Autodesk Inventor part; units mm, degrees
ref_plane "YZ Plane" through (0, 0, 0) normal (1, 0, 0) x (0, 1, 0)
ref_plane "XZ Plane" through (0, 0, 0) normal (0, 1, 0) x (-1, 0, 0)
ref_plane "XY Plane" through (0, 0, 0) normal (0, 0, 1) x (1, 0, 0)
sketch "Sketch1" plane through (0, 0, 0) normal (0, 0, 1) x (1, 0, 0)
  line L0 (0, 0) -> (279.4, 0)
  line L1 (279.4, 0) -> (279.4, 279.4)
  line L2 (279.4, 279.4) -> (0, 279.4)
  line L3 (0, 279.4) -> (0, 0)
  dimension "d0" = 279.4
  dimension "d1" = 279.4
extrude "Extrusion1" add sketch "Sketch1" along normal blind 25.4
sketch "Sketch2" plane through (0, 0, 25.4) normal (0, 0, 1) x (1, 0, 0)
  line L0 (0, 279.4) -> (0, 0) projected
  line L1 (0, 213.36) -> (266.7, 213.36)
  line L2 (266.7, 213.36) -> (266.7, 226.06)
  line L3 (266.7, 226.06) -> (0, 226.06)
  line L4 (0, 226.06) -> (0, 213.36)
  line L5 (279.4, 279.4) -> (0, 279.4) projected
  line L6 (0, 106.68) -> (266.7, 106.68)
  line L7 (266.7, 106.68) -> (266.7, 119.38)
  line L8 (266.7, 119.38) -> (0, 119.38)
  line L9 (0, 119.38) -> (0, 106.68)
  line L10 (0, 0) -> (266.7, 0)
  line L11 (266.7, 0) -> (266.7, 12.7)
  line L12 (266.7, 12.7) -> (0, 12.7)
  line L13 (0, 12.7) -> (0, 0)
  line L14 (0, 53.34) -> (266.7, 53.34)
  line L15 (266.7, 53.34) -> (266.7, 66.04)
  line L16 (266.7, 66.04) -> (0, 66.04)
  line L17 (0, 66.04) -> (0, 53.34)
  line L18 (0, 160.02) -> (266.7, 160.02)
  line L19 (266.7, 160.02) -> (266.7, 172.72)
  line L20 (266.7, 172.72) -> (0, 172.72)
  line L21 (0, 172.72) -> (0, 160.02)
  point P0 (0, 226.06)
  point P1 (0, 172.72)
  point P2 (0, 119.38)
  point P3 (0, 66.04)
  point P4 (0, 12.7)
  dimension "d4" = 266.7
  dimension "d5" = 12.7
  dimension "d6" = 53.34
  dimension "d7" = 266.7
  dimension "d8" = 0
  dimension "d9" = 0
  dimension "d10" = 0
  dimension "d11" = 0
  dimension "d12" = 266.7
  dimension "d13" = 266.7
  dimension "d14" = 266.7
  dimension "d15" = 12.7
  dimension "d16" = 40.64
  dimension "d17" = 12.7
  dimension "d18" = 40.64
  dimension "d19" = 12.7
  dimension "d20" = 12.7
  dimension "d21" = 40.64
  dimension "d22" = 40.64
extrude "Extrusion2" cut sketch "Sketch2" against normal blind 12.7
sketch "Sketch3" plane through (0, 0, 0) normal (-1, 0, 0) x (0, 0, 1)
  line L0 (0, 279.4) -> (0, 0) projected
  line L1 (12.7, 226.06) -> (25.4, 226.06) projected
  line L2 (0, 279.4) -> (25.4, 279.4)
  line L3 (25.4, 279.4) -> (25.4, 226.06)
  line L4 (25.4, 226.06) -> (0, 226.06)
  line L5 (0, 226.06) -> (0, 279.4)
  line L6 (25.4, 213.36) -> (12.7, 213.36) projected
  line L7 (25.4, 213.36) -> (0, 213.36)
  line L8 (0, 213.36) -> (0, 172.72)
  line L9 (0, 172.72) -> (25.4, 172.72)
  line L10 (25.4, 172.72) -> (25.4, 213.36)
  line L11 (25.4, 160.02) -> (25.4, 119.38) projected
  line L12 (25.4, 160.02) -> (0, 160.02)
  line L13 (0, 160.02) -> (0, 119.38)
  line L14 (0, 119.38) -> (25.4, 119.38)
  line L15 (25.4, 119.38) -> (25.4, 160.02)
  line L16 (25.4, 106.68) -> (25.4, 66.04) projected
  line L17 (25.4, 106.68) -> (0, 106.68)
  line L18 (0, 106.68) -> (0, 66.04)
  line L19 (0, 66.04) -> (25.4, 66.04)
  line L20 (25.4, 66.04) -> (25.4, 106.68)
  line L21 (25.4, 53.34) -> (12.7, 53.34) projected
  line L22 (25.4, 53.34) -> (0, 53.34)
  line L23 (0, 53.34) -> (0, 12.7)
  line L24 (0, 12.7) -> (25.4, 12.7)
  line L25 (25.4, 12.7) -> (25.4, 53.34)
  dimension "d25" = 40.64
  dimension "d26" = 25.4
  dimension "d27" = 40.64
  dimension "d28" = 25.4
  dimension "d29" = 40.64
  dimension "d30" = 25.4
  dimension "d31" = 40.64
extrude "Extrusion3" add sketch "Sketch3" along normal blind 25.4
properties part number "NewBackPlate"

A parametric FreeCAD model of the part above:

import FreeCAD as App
import Part
import Sketcher

V = App.Vector
Q = App.Units.Quantity


def add_polygon(sketch, points):
    """Adds a closed chain of lines whose ends are joined by coincident constraints."""
    first, n = sketch.GeometryCount, len(points)
    for a, b in zip(points, points[1:] + points[:1]):
        sketch.addGeometry(Part.LineSegment(App.Vector(*a, 0), App.Vector(*b, 0)), False)
    for i in range(n):
        sketch.addConstraint(Sketcher.Constraint("Coincident", first + i, 2, first + (i + 1) % n, 1))

doc = App.newDocument("Part")
body = doc.addObject("PartDesign::Body", "Body")

sketch1 = doc.addObject("Sketcher::SketchObject", "Sketch")
body.addObject(sketch1)
sketch1.AttachmentSupport = (doc.XY_Plane, [""])
sketch1.MapMode = "FlatFace"
add_polygon(sketch1, [(0, 279), (0, 0), (279, 0), (279, 279)])
sketch1.addConstraint([
    Sketcher.Constraint("Vertical", 0),
    Sketcher.Constraint("Horizontal", 1),
    Sketcher.Constraint("Vertical", 2),
    Sketcher.Constraint("Horizontal", 3),
    Sketcher.Constraint("Coincident", 0, 2, -1, 1),
    Sketcher.Constraint("Equal", 3, 0),
    Sketcher.Constraint("DistanceX", 1, 1, 1, 2, Q("11 in")),
])
pad1 = doc.addObject("PartDesign::Pad", "Pad")
body.addObject(pad1)
pad1.Profile = sketch1
pad1.Length = Q("1 in")

sketch2 = doc.addObject("Sketcher::SketchObject", "Sketch001")
body.addObject(sketch2)
sketch2.AttachmentSupport = (doc.XY_Plane, [""])
sketch2.MapMode = "FlatFace"
sketch2.AttachmentOffset = App.Placement(V(0, 0, 1 * 25.4), App.Rotation())
add_polygon(sketch2, [(267, 226), (0, 226), (0, 213), (267, 213)])
add_polygon(sketch2, [(267, 13), (0, 13), (0, 0), (267, 0)])
add_polygon(sketch2, [(267, 66), (0, 66), (0, 53), (267, 53)])
add_polygon(sketch2, [(267, 119), (0, 119), (0, 107), (267, 107)])
add_polygon(sketch2, [(267, 173), (0, 173), (0, 160), (267, 160)])
sketch2.addConstraint([
    Sketcher.Constraint("Horizontal", 0),
    Sketcher.Constraint("Vertical", 1),
    Sketcher.Constraint("Horizontal", 2),
    Sketcher.Constraint("Vertical", 3),
    Sketcher.Constraint("Horizontal", 4),
    Sketcher.Constraint("Vertical", 5),
    Sketcher.Constraint("Horizontal", 6),
    Sketcher.Constraint("Vertical", 7),
    Sketcher.Constraint("Horizontal", 8),
    Sketcher.Constraint("Vertical", 9),
    Sketcher.Constraint("Horizontal", 10),
    Sketcher.Constraint("Vertical", 11),
    Sketcher.Constraint("Horizontal", 12),
    Sketcher.Constraint("Vertical", 13),
    Sketcher.Constraint("Horizontal", 14),
    Sketcher.Constraint("Vertical", 15),
    Sketcher.Constraint("Horizontal", 16),
    Sketcher.Constraint("Vertical", 17),
    Sketcher.Constraint("Horizontal", 18),
    Sketcher.Constraint("Vertical", 19),
    Sketcher.Constraint("Coincident", 5, 2, -1, 1),
    Sketcher.Constraint("PointOnObject", 0, 2, -2),
    Sketcher.Constraint("PointOnObject", 8, 2, -2),
    Sketcher.Constraint("PointOnObject", 12, 2, -2),
    Sketcher.Constraint("PointOnObject", 16, 2, -2),
    Sketcher.Constraint("Vertical", 3, 2, 6, 2),
    Sketcher.Constraint("Vertical", 7, 2, 10, 2),
    Sketcher.Constraint("Vertical", 11, 2, 14, 2),
    Sketcher.Constraint("Vertical", 15, 2, 18, 2),
    Sketcher.Constraint("Equal", 3, 5),
    Sketcher.Constraint("Equal", 7, 9),
    Sketcher.Constraint("Equal", 11, 13),
    Sketcher.Constraint("Equal", 15, 17),
    Sketcher.Constraint("DistanceX", 0, 2, 0, 1, Q("10.5 in")),
    Sketcher.Constraint("DistanceY", 1, 2, 1, 1, Q("0.5 in")),
    Sketcher.Constraint("DistanceY", -1, 1, 9, 2, Q("2.1 in")),
    Sketcher.Constraint("DistanceY", 8, 2, 12, 2, Q("2.1 in")),
    Sketcher.Constraint("DistanceY", 16, 2, 1, 2, Q("1.6 in")),
    Sketcher.Constraint("DistanceY", 12, 2, 16, 2, Q("2.1 in")),
])
pocket1 = doc.addObject("PartDesign::Pocket", "Pocket")
body.addObject(pocket1)
pocket1.Profile = sketch2
pocket1.Length = Q("0.5 in")

sketch3 = doc.addObject("Sketcher::SketchObject", "Sketch002")
body.addObject(sketch3)
sketch3.AttachmentSupport = (doc.YZ_Plane, [""])
sketch3.MapMode = "FlatFace"
add_polygon(sketch3, [(279, 25), (279, 0), (226, 0), (226, 25)])
add_polygon(sketch3, [(53, 25), (53, 0), (13, 0), (13, 25)])
add_polygon(sketch3, [(107, 25), (107, 0), (66, 0), (66, 25)])
add_polygon(sketch3, [(160, 25), (160, 0), (119, 0), (119, 25)])
add_polygon(sketch3, [(213, 25), (213, 0), (173, 0), (173, 25)])
sketch3.addConstraint([
    Sketcher.Constraint("Vertical", 0),
    Sketcher.Constraint("Horizontal", 1),
    Sketcher.Constraint("Vertical", 2),
    Sketcher.Constraint("Horizontal", 3),
    Sketcher.Constraint("Vertical", 4),
    Sketcher.Constraint("Horizontal", 5),
    Sketcher.Constraint("Vertical", 6),
    Sketcher.Constraint("Horizontal", 7),
    Sketcher.Constraint("Vertical", 8),
    Sketcher.Constraint("Horizontal", 9),
    Sketcher.Constraint("Vertical", 10),
    Sketcher.Constraint("Horizontal", 11),
    Sketcher.Constraint("Vertical", 12),
    Sketcher.Constraint("Horizontal", 13),
    Sketcher.Constraint("Vertical", 14),
    Sketcher.Constraint("Horizontal", 15),
    Sketcher.Constraint("Vertical", 16),
    Sketcher.Constraint("Horizontal", 17),
    Sketcher.Constraint("Vertical", 18),
    Sketcher.Constraint("Horizontal", 19),
    Sketcher.Constraint("PointOnObject", 0, 2, -1),
    Sketcher.Constraint("PointOnObject", 4, 2, -1),
    Sketcher.Constraint("PointOnObject", 8, 2, -1),
    Sketcher.Constraint("PointOnObject", 12, 2, -1),
    Sketcher.Constraint("PointOnObject", 16, 2, -1),
    Sketcher.Constraint("Horizontal", 3, 2, 6, 2),
    Sketcher.Constraint("Horizontal", 7, 2, 10, 2),
    Sketcher.Constraint("Horizontal", 11, 2, 14, 2),
    Sketcher.Constraint("Horizontal", 15, 2, 18, 2),
    Sketcher.Constraint("Equal", 7, 9),
    Sketcher.Constraint("Equal", 11, 13),
    Sketcher.Constraint("Equal", 15, 17),
    Sketcher.Constraint("DistanceY", 0, 2, 0, 1, Q("1 in")),
    Sketcher.Constraint("DistanceX", 5, 2, 5, 1, Q("1.6 in")),
    Sketcher.Constraint("DistanceX", 1, 2, 1, 1, Q("2.1 in")),
    Sketcher.Constraint("DistanceX", -1, 1, 0, 2, Q("11 in")),
    Sketcher.Constraint("DistanceX", -1, 1, 4, 2, Q("2.1 in")),
    Sketcher.Constraint("DistanceX", -1, 1, 8, 2, Q("4.2 in")),
    Sketcher.Constraint("DistanceX", -1, 1, 12, 2, Q("6.3 in")),
    Sketcher.Constraint("DistanceX", -1, 1, 16, 2, Q("8.4 in")),
])
pad2 = doc.addObject("PartDesign::Pad", "Pad001")
body.addObject(pad2)
pad2.Profile = sketch3
pad2.Length = Q("1 in")
pad2.Reversed = True

doc.recompute()
